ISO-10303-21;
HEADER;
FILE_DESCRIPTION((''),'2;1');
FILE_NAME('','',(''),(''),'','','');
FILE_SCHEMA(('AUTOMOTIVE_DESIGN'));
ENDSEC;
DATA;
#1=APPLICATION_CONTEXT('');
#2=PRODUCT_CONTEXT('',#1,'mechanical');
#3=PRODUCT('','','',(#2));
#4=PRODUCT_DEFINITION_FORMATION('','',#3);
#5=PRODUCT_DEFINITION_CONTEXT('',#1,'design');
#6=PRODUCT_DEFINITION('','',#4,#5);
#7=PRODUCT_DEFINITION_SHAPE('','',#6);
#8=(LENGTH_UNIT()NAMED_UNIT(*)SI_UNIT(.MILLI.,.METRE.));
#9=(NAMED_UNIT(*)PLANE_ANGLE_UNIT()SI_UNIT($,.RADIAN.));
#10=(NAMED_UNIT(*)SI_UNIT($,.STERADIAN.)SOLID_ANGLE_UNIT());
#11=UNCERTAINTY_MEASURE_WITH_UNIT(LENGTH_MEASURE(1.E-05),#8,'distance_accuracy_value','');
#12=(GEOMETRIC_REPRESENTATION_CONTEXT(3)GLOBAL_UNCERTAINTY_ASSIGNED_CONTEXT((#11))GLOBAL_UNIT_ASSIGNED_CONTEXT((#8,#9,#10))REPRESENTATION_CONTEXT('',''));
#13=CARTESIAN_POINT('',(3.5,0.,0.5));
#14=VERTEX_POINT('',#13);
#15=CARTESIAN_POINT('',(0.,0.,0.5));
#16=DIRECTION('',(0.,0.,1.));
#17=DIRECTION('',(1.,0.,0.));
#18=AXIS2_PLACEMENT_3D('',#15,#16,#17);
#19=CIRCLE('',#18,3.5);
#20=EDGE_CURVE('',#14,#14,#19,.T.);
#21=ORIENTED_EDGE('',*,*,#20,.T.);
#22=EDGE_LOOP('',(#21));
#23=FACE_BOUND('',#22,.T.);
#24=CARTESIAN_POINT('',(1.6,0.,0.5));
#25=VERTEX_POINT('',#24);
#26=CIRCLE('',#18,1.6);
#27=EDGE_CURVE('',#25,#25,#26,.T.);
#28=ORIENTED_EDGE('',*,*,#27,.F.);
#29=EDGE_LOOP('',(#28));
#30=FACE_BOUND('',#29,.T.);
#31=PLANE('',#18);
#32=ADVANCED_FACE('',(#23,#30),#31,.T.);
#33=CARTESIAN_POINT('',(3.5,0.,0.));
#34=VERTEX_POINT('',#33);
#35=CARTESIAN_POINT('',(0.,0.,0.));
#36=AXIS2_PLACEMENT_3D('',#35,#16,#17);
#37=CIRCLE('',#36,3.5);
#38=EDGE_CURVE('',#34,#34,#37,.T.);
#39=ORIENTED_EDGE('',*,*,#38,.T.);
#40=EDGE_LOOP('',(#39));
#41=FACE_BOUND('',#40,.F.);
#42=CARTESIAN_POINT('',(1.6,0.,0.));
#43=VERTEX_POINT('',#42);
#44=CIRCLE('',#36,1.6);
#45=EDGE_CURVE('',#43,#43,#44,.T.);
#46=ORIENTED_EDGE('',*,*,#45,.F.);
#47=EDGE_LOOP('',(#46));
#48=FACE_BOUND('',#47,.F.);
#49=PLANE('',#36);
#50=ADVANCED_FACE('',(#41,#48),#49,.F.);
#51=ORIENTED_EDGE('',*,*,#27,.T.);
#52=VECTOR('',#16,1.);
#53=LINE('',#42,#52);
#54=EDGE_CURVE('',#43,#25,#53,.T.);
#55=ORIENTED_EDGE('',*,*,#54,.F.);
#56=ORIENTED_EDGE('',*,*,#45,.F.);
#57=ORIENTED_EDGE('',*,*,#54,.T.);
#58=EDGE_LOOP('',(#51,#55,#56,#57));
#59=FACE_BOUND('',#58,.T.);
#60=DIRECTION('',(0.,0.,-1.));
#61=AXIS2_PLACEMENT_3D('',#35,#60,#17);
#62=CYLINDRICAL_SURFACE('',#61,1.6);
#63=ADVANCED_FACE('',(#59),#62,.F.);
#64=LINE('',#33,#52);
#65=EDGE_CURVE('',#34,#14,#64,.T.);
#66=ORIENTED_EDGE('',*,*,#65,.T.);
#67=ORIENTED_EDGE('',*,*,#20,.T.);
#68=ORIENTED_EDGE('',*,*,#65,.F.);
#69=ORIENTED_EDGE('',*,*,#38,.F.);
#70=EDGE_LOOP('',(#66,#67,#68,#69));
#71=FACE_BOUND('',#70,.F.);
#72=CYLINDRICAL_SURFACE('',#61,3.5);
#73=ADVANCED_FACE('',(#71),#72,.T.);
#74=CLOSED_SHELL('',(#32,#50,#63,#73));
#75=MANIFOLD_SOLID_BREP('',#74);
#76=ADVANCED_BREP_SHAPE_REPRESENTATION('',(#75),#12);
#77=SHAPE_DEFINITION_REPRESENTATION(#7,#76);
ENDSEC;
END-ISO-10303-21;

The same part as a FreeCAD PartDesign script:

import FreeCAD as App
import Part
import Sketcher

V = App.Vector

doc = App.newDocument("Part")
body = doc.addObject("PartDesign::Body", "Body")

# Sketch on XY plane
sketch1 = body.newObject("Sketcher::SketchObject", "Sketch")
sketch1.AttachmentSupport = (doc.getObject("XY_Plane"), [""])
sketch1.MapMode = "FlatFace"
sketch1.addGeometry(Part.Circle(V(0, 0, 0), V(0, 0, 1), 3.5), False)
sketch1.addGeometry(Part.Circle(V(0, 0, 0), V(0, 0, 1), 1.6), False)
sketch1.addConstraint(Sketcher.Constraint("Coincident", 0, 3, -1, 1))
sketch1.addConstraint(Sketcher.Constraint("Coincident", 1, 3, -1, 1))
sketch1.addConstraint(Sketcher.Constraint("Diameter", 0, 7.0))
sketch1.addConstraint(Sketcher.Constraint("Diameter", 1, 3.2))
pad1 = body.newObject("PartDesign::Pad", "Pad")
pad1.Profile = sketch1
pad1.Length = 0.5

doc.recompute()
